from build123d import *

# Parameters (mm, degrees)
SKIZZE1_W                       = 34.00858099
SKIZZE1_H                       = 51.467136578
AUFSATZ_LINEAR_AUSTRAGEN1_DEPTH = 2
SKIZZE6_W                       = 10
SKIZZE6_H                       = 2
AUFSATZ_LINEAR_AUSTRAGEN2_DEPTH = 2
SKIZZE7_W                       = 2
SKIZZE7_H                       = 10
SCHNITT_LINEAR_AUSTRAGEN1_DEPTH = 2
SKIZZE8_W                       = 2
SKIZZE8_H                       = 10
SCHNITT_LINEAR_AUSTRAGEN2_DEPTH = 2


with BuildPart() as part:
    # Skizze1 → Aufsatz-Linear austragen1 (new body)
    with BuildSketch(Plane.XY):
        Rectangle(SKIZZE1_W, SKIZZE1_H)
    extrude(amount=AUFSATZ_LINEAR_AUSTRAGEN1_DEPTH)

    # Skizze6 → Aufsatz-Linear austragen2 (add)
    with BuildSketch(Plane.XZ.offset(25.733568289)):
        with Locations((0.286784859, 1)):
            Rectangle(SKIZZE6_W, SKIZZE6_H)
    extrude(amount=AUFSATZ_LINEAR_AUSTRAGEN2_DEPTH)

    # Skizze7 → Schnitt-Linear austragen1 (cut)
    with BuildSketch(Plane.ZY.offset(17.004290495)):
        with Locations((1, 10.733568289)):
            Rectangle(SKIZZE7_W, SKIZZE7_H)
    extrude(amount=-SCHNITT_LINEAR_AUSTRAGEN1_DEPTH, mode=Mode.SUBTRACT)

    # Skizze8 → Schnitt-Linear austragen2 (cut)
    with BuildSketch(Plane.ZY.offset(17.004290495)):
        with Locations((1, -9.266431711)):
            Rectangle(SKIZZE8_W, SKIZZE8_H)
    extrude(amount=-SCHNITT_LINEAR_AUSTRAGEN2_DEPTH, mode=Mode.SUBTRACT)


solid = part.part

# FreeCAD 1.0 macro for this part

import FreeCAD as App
import Part
import Sketcher

V = App.Vector
Q = App.Units.Quantity

doc = App.newDocument("Part")
params = doc.addObject("Spreadsheet::Sheet", "Params")
for row, (alias, value) in enumerate([
    ("pad1_length", "2 mm"),
    ("sketch2_width", "10 mm"),
    ("sketch2_height", "2 mm"),
    ("pad2_length", "2 mm"),
    ("sketch3_width", "10 mm"),
    ("sketch3_height", "2 mm"),
    ("pocket1_length", "2 mm"),
    ("sketch4_width", "10 mm"),
    ("sketch4_height", "2 mm"),
    ("pocket2_length", "2 mm"),
], start=1):
    params.set(f"A{row}", alias)
    params.set(f"B{row}", "=" + value)
    params.setAlias(f"B{row}", alias)

body = doc.addObject("PartDesign::Body", "Body")

# Sketch on XY plane
sketch1 = body.newObject("Sketcher::SketchObject", "Sketch")
sketch1.AttachmentSupport = (doc.getObject("XY_Plane"), [""])
sketch1.MapMode = "FlatFace"
sketch1.addGeometry(Part.LineSegment(V(-17, 26, 0), V(-17, -26, 0)), False)
sketch1.addGeometry(Part.LineSegment(V(-17, -26, 0), V(17, -26, 0)), False)
sketch1.addGeometry(Part.LineSegment(V(17, -26, 0), V(17, 26, 0)), False)
sketch1.addGeometry(Part.LineSegment(V(17, 26, 0), V(-17, 26, 0)), False)
sketch1.addConstraint(Sketcher.Constraint("Coincident", 0, 2, 1, 1))
sketch1.addConstraint(Sketcher.Constraint("Coincident", 1, 2, 2, 1))
sketch1.addConstraint(Sketcher.Constraint("Coincident", 2, 2, 3, 1))
sketch1.addConstraint(Sketcher.Constraint("Coincident", 3, 2, 0, 1))
sketch1.addConstraint(Sketcher.Constraint("Vertical", 0))
sketch1.addConstraint(Sketcher.Constraint("Horizontal", 1))
sketch1.addConstraint(Sketcher.Constraint("Vertical", 2))
sketch1.addConstraint(Sketcher.Constraint("Horizontal", 3))
sketch1.addConstraint(Sketcher.Constraint("Symmetric", 0, 2, 2, 2, -1, 1))
sketch1.addConstraint(Sketcher.Constraint("DistanceX", 1, 1, 1, 2, Q("34.008581 mm")))
sketch1.addConstraint(Sketcher.Constraint("DistanceY", 0, 2, 0, 1, Q("51.467137 mm")))
pad1 = body.newObject("PartDesign::Pad", "Pad")
pad1.Profile = sketch1
pad1.setExpression("Length", "Params.pad1_length")

# Sketch on XZ plane
sketch2 = body.newObject("Sketcher::SketchObject", "Sketch001")
sketch2.AttachmentSupport = (doc.getObject("XZ_Plane"), [""])
sketch2.MapMode = "FlatFace"
sketch2.AttachmentOffset = App.Placement(V(0, 0, 25.733568), App.Rotation())
sketch2.addGeometry(Part.LineSegment(V(-4.7, 2, 0), V(-4.7, 0, 0)), False)
sketch2.addGeometry(Part.LineSegment(V(-4.7, 0, 0), V(5.3, 0, 0)), False)
sketch2.addGeometry(Part.LineSegment(V(5.3, 0, 0), V(5.3, 2, 0)), False)
sketch2.addGeometry(Part.LineSegment(V(5.3, 2, 0), V(-4.7, 2, 0)), False)
sketch2.addConstraint(Sketcher.Constraint("Coincident", 0, 2, 1, 1))
sketch2.addConstraint(Sketcher.Constraint("Coincident", 1, 2, 2, 1))
sketch2.addConstraint(Sketcher.Constraint("Coincident", 2, 2, 3, 1))
sketch2.addConstraint(Sketcher.Constraint("Coincident", 3, 2, 0, 1))
sketch2.addConstraint(Sketcher.Constraint("Vertical", 0))
sketch2.addConstraint(Sketcher.Constraint("Horizontal", 1))
sketch2.addConstraint(Sketcher.Constraint("Vertical", 2))
sketch2.addConstraint(Sketcher.Constraint("Horizontal", 3))
sketch2.addConstraint(Sketcher.Constraint("PointOnObject", 0, 2, -1))
sketch2.addConstraint(Sketcher.Constraint("DistanceX", 1, 1, 1, 2, Q("10 mm")))
sketch2.addConstraint(Sketcher.Constraint("DistanceY", 0, 2, 0, 1, Q("2 mm")))
sketch2.addConstraint(Sketcher.Constraint("DistanceX", 0, 2, -1, 1, Q("4.713215 mm")))
sketch2.setExpression("Constraints[9]", "Params.sketch2_width")
sketch2.setExpression("Constraints[10]", "Params.sketch2_height")
pad2 = body.newObject("PartDesign::Pad", "Pad001")
pad2.Profile = sketch2
pad2.setExpression("Length", "Params.pad2_length")

# Sketch on YZ plane
sketch3 = body.newObject("Sketcher::SketchObject", "Sketch002")
sketch3.AttachmentSupport = (doc.getObject("YZ_Plane"), [""])
sketch3.MapMode = "FlatFace"
sketch3.AttachmentOffset = App.Placement(V(0, 0, -17.00429), App.Rotation())
sketch3.addGeometry(Part.LineSegment(V(15.7, 0, 0), V(5.7, 0, 0)), False)
sketch3.addGeometry(Part.LineSegment(V(5.7, 0, 0), V(5.7, 2, 0)), False)
sketch3.addGeometry(Part.LineSegment(V(5.7, 2, 0), V(15.7, 2, 0)), False)
sketch3.addGeometry(Part.LineSegment(V(15.7, 2, 0), V(15.7, 0, 0)), False)
sketch3.addConstraint(Sketcher.Constraint("Coincident", 0, 2, 1, 1))
sketch3.addConstraint(Sketcher.Constraint("Coincident", 1, 2, 2, 1))
sketch3.addConstraint(Sketcher.Constraint("Coincident", 2, 2, 3, 1))
sketch3.addConstraint(Sketcher.Constraint("Coincident", 3, 2, 0, 1))
sketch3.addConstraint(Sketcher.Constraint("Horizontal", 0))
sketch3.addConstraint(Sketcher.Constraint("Vertical", 1))
sketch3.addConstraint(Sketcher.Constraint("Horizontal", 2))
sketch3.addConstraint(Sketcher.Constraint("Vertical", 3))
sketch3.addConstraint(Sketcher.Constraint("PointOnObject", 0, 2, -1))
sketch3.addConstraint(Sketcher.Constraint("DistanceX", 0, 2, 0, 1, Q("10 mm")))
sketch3.addConstraint(Sketcher.Constraint("DistanceY", 1, 1, 1, 2, Q("2 mm")))
sketch3.addConstraint(Sketcher.Constraint("DistanceX", -1, 1, 0, 2, Q("5.733568 mm")))
sketch3.setExpression("Constraints[9]", "Params.sketch3_width")
sketch3.setExpression("Constraints[10]", "Params.sketch3_height")
pocket1 = body.newObject("PartDesign::Pocket", "Pocket")
pocket1.Profile = sketch3
pocket1.setExpression("Length", "Params.pocket1_length")
pocket1.Reversed = True

# Sketch on YZ plane
sketch4 = body.newObject("Sketcher::SketchObject", "Sketch003")
sketch4.AttachmentSupport = (doc.getObject("YZ_Plane"), [""])
sketch4.MapMode = "FlatFace"
sketch4.AttachmentOffset = App.Placement(V(0, 0, -17.00429), App.Rotation())
sketch4.addGeometry(Part.LineSegment(V(-4.3, 0, 0), V(-14.3, 0, 0)), False)
sketch4.addGeometry(Part.LineSegment(V(-14.3, 0, 0), V(-14.3, 2, 0)), False)
sketch4.addGeometry(Part.LineSegment(V(-14.3, 2, 0), V(-4.3, 2, 0)), False)
sketch4.addGeometry(Part.LineSegment(V(-4.3, 2, 0), V(-4.3, 0, 0)), False)
sketch4.addConstraint(Sketcher.Constraint("Coincident", 0, 2, 1, 1))
sketch4.addConstraint(Sketcher.Constraint("Coincident", 1, 2, 2, 1))
sketch4.addConstraint(Sketcher.Constraint("Coincident", 2, 2, 3, 1))
sketch4.addConstraint(Sketcher.Constraint("Coincident", 3, 2, 0, 1))
sketch4.addConstraint(Sketcher.Constraint("Horizontal", 0))
sketch4.addConstraint(Sketcher.Constraint("Vertical", 1))
sketch4.addConstraint(Sketcher.Constraint("Horizontal", 2))
sketch4.addConstraint(Sketcher.Constraint("Vertical", 3))
sketch4.addConstraint(Sketcher.Constraint("PointOnObject", 0, 2, -1))
sketch4.addConstraint(Sketcher.Constraint("DistanceX", 0, 2, 0, 1, Q("10 mm")))
sketch4.addConstraint(Sketcher.Constraint("DistanceY", 1, 1, 1, 2, Q("2 mm")))
sketch4.addConstraint(Sketcher.Constraint("DistanceX", 0, 2, -1, 1, Q("14.266432 mm")))
sketch4.setExpression("Constraints[9]", "Params.sketch4_width")
sketch4.setExpression("Constraints[10]", "Params.sketch4_height")
pocket2 = body.newObject("PartDesign::Pocket", "Pocket001")
pocket2.Profile = sketch4
pocket2.setExpression("Length", "Params.pocket2_length")
pocket2.Reversed = True

doc.recompute()
